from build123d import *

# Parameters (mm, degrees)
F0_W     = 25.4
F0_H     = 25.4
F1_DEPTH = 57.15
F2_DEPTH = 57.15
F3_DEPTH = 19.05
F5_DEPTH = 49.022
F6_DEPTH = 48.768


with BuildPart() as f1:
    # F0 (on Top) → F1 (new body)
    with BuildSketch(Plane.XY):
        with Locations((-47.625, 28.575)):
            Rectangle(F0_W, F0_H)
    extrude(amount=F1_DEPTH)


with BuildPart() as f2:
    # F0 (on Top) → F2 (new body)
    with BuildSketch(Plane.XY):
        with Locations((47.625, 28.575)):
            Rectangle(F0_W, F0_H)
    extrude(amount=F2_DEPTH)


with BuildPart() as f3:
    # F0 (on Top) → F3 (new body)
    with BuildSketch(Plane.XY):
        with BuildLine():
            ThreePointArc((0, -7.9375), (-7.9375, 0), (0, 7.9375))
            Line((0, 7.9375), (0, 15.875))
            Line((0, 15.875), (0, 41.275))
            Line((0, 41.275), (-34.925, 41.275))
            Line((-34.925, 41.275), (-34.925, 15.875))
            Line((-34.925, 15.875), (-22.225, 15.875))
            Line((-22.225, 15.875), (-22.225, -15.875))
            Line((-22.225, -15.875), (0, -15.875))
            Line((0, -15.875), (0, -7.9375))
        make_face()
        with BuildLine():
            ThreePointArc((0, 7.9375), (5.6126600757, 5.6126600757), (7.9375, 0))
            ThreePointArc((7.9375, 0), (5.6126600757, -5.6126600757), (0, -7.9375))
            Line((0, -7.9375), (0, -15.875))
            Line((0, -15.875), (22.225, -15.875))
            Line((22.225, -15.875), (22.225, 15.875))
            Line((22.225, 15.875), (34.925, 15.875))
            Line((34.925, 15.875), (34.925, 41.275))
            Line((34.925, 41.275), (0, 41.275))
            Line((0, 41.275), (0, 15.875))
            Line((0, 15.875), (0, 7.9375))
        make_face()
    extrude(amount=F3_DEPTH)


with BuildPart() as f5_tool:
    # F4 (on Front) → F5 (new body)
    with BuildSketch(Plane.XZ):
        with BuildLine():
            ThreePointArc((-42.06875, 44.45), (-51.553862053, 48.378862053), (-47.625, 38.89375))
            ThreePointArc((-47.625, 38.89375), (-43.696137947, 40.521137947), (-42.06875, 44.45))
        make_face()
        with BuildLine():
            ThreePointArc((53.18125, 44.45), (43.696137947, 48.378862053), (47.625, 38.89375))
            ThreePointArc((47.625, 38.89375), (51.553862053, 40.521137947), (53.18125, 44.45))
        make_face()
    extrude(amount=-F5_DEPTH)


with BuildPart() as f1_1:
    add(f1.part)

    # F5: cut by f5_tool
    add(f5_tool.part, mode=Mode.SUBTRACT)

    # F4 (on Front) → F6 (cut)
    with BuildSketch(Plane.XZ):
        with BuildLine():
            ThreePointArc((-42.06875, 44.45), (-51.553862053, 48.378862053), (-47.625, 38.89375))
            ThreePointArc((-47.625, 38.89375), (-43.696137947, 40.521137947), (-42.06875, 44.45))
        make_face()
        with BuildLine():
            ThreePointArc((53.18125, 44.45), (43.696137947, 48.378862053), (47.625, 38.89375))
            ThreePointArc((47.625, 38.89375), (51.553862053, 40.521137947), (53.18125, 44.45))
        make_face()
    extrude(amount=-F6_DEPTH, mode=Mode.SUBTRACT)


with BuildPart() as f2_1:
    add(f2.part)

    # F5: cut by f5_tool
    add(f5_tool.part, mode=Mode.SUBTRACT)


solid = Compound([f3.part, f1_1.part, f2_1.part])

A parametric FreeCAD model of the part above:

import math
import FreeCAD as App
import Part
import Sketcher
Q = App.Units.Quantity

doc = App.newDocument("Part")
body = doc.addObject("PartDesign::Body", "Body")

# Sketch on XY plane
sketch1 = body.newObject("Sketcher::SketchObject", "Sketch")
sketch1.AttachmentSupport = (doc.getObject("XY_Plane"), [""])
sketch1.MapMode = "FlatFace"
sketch1.addGeometry([
    Part.LineSegment(App.Vector(-60.325, 41.275, 0), App.Vector(-60.325, 15.875, 0)),
    Part.LineSegment(App.Vector(-60.325, 15.875, 0), App.Vector(-34.925, 15.875, 0)),
    Part.LineSegment(App.Vector(-34.925, 15.875, 0), App.Vector(-34.925, 41.275, 0)),
    Part.LineSegment(App.Vector(-34.925, 41.275, 0), App.Vector(-60.325, 41.275, 0)),
], False)
sketch1.addConstraint([
    Sketcher.Constraint("Coincident", 0, 2, 1, 1),
    Sketcher.Constraint("Coincident", 1, 2, 2, 1),
    Sketcher.Constraint("Coincident", 2, 2, 3, 1),
    Sketcher.Constraint("Coincident", 3, 2, 0, 1),
    Sketcher.Constraint("Vertical", 0),
    Sketcher.Constraint("Horizontal", 1),
    Sketcher.Constraint("Vertical", 2),
    Sketcher.Constraint("Horizontal", 3),
    Sketcher.Constraint("Equal", 3, 0),
    Sketcher.Constraint("DistanceX", 1, 1, 1, 2, Q("1 in")),
    Sketcher.Constraint("DistanceX", 0, 2, -1, 1, Q("2.375 in")),
    Sketcher.Constraint("DistanceY", -1, 1, 0, 2, Q("0.625 in")),
])
pad1 = body.newObject("PartDesign::Pad", "Pad")
pad1.Profile = sketch1
pad1.Length = Q("2.25 in")
body2 = doc.addObject("PartDesign::Body", "Body001")

# Sketch on XY plane
sketch2 = body2.newObject("Sketcher::SketchObject", "Sketch001")
sketch2.AttachmentSupport = (doc.getObject("XY_Plane001"), [""])
sketch2.MapMode = "FlatFace"
sketch2.addGeometry([
    Part.LineSegment(App.Vector(34.925, 41.275, 0), App.Vector(34.925, 15.875, 0)),
    Part.LineSegment(App.Vector(34.925, 15.875, 0), App.Vector(60.325, 15.875, 0)),
    Part.LineSegment(App.Vector(60.325, 15.875, 0), App.Vector(60.325, 41.275, 0)),
    Part.LineSegment(App.Vector(60.325, 41.275, 0), App.Vector(34.925, 41.275, 0)),
], False)
sketch2.addConstraint([
    Sketcher.Constraint("Coincident", 0, 2, 1, 1),
    Sketcher.Constraint("Coincident", 1, 2, 2, 1),
    Sketcher.Constraint("Coincident", 2, 2, 3, 1),
    Sketcher.Constraint("Coincident", 3, 2, 0, 1),
    Sketcher.Constraint("Vertical", 0),
    Sketcher.Constraint("Horizontal", 1),
    Sketcher.Constraint("Vertical", 2),
    Sketcher.Constraint("Horizontal", 3),
    Sketcher.Constraint("Equal", 3, 0),
    Sketcher.Constraint("DistanceX", 1, 1, 1, 2, Q("1 in")),
    Sketcher.Constraint("DistanceX", -1, 1, 0, 2, Q("1.375 in")),
    Sketcher.Constraint("DistanceY", -1, 1, 0, 2, Q("0.625 in")),
])
pad2 = body2.newObject("PartDesign::Pad", "Pad001")
pad2.Profile = sketch2
pad2.Length = Q("2.25 in")
body3 = doc.addObject("PartDesign::Body", "Body002")

# Sketch on XY plane
sketch3 = body3.newObject("Sketcher::SketchObject", "Sketch002")
sketch3.AttachmentSupport = (doc.getObject("XY_Plane002"), [""])
sketch3.MapMode = "FlatFace"
sketch3.addGeometry([
    Part.LineSegment(App.Vector(-34.925, 41.275, 0), App.Vector(-34.925, 15.875, 0)),  # 0
    Part.LineSegment(App.Vector(-34.925, 15.875, 0), App.Vector(-22.225, 15.875, 0)),  # 1
    Part.LineSegment(App.Vector(-22.225, 15.875, 0), App.Vector(-22.225, -15.875, 0)),  # 2
    Part.LineSegment(App.Vector(-22.225, -15.875, 0), App.Vector(22.225, -15.875, 0)),  # 3
    Part.LineSegment(App.Vector(22.225, -15.875, 0), App.Vector(22.225, 15.875, 0)),  # 4
    Part.LineSegment(App.Vector(22.225, 15.875, 0), App.Vector(34.925, 15.875, 0)),  # 5
    Part.LineSegment(App.Vector(34.925, 15.875, 0), App.Vector(34.925, 41.275, 0)),  # 6
    Part.LineSegment(App.Vector(34.925, 41.275, 0), App.Vector(-34.925, 41.275, 0)),  # 7
    Part.ArcOfCircle(Part.Circle(App.Vector(0, 0, 0), App.Vector(0, 0, 1), 7.9375), math.radians(90), math.radians(270)),  # 8
    Part.ArcOfCircle(Part.Circle(App.Vector(0, 0, 0), App.Vector(0, 0, 1), 7.9375), math.radians(0), math.radians(90)),  # 9
    Part.ArcOfCircle(Part.Circle(App.Vector(0, 0, 0), App.Vector(0, 0, 1), 7.9375), math.radians(-90), math.radians(0)),  # 10
], False)
sketch3.addConstraint([
    Sketcher.Constraint("Coincident", 0, 2, 1, 1),
    Sketcher.Constraint("Coincident", 1, 2, 2, 1),
    Sketcher.Constraint("Coincident", 2, 2, 3, 1),
    Sketcher.Constraint("Coincident", 3, 2, 4, 1),
    Sketcher.Constraint("Coincident", 4, 2, 5, 1),
    Sketcher.Constraint("Coincident", 5, 2, 6, 1),
    Sketcher.Constraint("Coincident", 6, 2, 7, 1),
    Sketcher.Constraint("Coincident", 7, 2, 0, 1),
    Sketcher.Constraint("Tangent", 8, 1, 9, 2),
    Sketcher.Constraint("Tangent", 9, 1, 10, 2),
    Sketcher.Constraint("Tangent", 10, 1, 8, 2),
    Sketcher.Constraint("Vertical", 0),
    Sketcher.Constraint("Horizontal", 1),
    Sketcher.Constraint("Vertical", 2),
    Sketcher.Constraint("Horizontal", 3),
    Sketcher.Constraint("Vertical", 4),
    Sketcher.Constraint("Horizontal", 5),
    Sketcher.Constraint("Vertical", 6),
    Sketcher.Constraint("Horizontal", 7),
    Sketcher.Constraint("Coincident", 8, 3, -1, 1),
    Sketcher.Constraint("Symmetric", 1, 2, 3, 2, -1, 1),
    Sketcher.Constraint("Symmetric", 0, 2, 5, 2, -2),
    Sketcher.Constraint("PointOnObject", 8, 1, -2),
    Sketcher.Constraint("PointOnObject", 9, 1, -1),
    Sketcher.Constraint("PointOnObject", 10, 1, -2),
    Sketcher.Constraint("DistanceY", 0, 2, 0, 1, Q("1 in")),
    Sketcher.Constraint("DistanceX", 1, 1, 1, 2, Q("0.5 in")),
    Sketcher.Constraint("Radius", 8, Q("0.3125 in")),
    Sketcher.Constraint("DistanceX", 3, 1, 3, 2, Q("1.75 in")),
    Sketcher.Constraint("DistanceY", 2, 2, 2, 1, Q("1.25 in")),
])
pad3 = body3.newObject("PartDesign::Pad", "Pad002")
pad3.Profile = sketch3
pad3.Length = Q("0.75 in")
body4 = doc.addObject("PartDesign::Body", "Body003")
body4.AllowCompound = True

# Sketch on XZ plane
sketch4 = body4.newObject("Sketcher::SketchObject", "Sketch003")
sketch4.AttachmentSupport = (doc.getObject("XZ_Plane003"), [""])
sketch4.MapMode = "FlatFace"
sketch4.addGeometry([
    Part.ArcOfCircle(Part.Circle(App.Vector(-47.625, 44.45, 0), App.Vector(0, 0, 1), 5.55625), math.radians(0), math.radians(270)),
    Part.ArcOfCircle(Part.Circle(App.Vector(-47.625, 44.45, 0), App.Vector(0, 0, 1), 5.55625), math.radians(-90), math.radians(0)),
    Part.ArcOfCircle(Part.Circle(App.Vector(47.625, 44.45, 0), App.Vector(0, 0, 1), 5.55625), math.radians(0), math.radians(270)),
    Part.ArcOfCircle(Part.Circle(App.Vector(47.625, 44.45, 0), App.Vector(0, 0, 1), 5.55625), math.radians(-90), math.radians(0)),
], False)
sketch4.addConstraint([
    Sketcher.Constraint("Tangent", 0, 1, 1, 2),
    Sketcher.Constraint("Coincident", 1, 1, 0, 2),
    Sketcher.Constraint("Tangent", 2, 1, 3, 2),
    Sketcher.Constraint("Coincident", 3, 1, 2, 2),
    Sketcher.Constraint("Equal", 1, 2),
    Sketcher.Constraint("Symmetric", 0, 3, 2, 3, -2),
    Sketcher.Constraint("Horizontal", 3, 3, 0, 1),
    Sketcher.Constraint("Horizontal", 0, 1, 2, 1),
    Sketcher.Constraint("Vertical", 0, 3, 1, 1),
    Sketcher.Constraint("Vertical", 2, 3, 3, 1),
    Sketcher.Constraint("Radius", 0, Q("0.21875 in")),
    Sketcher.Constraint("DistanceY", -1, 1, 0, 3, Q("1.75 in")),
    Sketcher.Constraint("DistanceX", 0, 3, 2, 3, Q("3.75 in")),
])
pad4 = body4.newObject("PartDesign::Pad", "Pad003")
pad4.Profile = sketch4
pad4.Length = Q("1.93 in")
pad4.Reversed = True
doc.recompute()

body5 = doc.addObject("PartDesign::Body", "Body004")
body5.BaseFeature = body4
boolean = body.newObject("PartDesign::Boolean", "Boolean")
boolean.Type = "Cut"
boolean.addObjects([body5])
doc.recompute()

# Sketch on XZ plane
sketch5 = body.newObject("Sketcher::SketchObject", "Sketch004")
sketch5.AttachmentSupport = (doc.getObject("XZ_Plane"), [""])
sketch5.MapMode = "FlatFace"
sketch5.addGeometry([
    Part.ArcOfCircle(Part.Circle(App.Vector(-47.625, 44.45, 0), App.Vector(0, 0, 1), 5.55625), math.radians(0), math.radians(270)),
    Part.ArcOfCircle(Part.Circle(App.Vector(-47.625, 44.45, 0), App.Vector(0, 0, 1), 5.55625), math.radians(-90), math.radians(0)),
    Part.ArcOfCircle(Part.Circle(App.Vector(47.625, 44.45, 0), App.Vector(0, 0, 1), 5.55625), math.radians(0), math.radians(270)),
    Part.ArcOfCircle(Part.Circle(App.Vector(47.625, 44.45, 0), App.Vector(0, 0, 1), 5.55625), math.radians(-90), math.radians(0)),
], False)
sketch5.addConstraint([
    Sketcher.Constraint("Tangent", 0, 1, 1, 2),
    Sketcher.Constraint("Coincident", 1, 1, 0, 2),
    Sketcher.Constraint("Tangent", 2, 1, 3, 2),
    Sketcher.Constraint("Coincident", 3, 1, 2, 2),
    Sketcher.Constraint("Equal", 1, 2),
    Sketcher.Constraint("Symmetric", 0, 3, 2, 3, -2),
    Sketcher.Constraint("Horizontal", 3, 3, 0, 1),
    Sketcher.Constraint("Horizontal", 0, 1, 2, 1),
    Sketcher.Constraint("Vertical", 0, 3, 1, 1),
    Sketcher.Constraint("Vertical", 2, 3, 3, 1),
    Sketcher.Constraint("Radius", 0, Q("0.21875 in")),
    Sketcher.Constraint("DistanceY", -1, 1, 0, 3, Q("1.75 in")),
    Sketcher.Constraint("DistanceX", 0, 3, 2, 3, Q("3.75 in")),
])
pocket1 = body.newObject("PartDesign::Pocket", "Pocket")
pocket1.Profile = sketch5
pocket1.Length = Q("1.92 in")
doc.recompute()

boolean2 = body2.newObject("PartDesign::Boolean", "Boolean001")
boolean2.Type = "Cut"
boolean2.addObjects([body4])

doc.recompute()
